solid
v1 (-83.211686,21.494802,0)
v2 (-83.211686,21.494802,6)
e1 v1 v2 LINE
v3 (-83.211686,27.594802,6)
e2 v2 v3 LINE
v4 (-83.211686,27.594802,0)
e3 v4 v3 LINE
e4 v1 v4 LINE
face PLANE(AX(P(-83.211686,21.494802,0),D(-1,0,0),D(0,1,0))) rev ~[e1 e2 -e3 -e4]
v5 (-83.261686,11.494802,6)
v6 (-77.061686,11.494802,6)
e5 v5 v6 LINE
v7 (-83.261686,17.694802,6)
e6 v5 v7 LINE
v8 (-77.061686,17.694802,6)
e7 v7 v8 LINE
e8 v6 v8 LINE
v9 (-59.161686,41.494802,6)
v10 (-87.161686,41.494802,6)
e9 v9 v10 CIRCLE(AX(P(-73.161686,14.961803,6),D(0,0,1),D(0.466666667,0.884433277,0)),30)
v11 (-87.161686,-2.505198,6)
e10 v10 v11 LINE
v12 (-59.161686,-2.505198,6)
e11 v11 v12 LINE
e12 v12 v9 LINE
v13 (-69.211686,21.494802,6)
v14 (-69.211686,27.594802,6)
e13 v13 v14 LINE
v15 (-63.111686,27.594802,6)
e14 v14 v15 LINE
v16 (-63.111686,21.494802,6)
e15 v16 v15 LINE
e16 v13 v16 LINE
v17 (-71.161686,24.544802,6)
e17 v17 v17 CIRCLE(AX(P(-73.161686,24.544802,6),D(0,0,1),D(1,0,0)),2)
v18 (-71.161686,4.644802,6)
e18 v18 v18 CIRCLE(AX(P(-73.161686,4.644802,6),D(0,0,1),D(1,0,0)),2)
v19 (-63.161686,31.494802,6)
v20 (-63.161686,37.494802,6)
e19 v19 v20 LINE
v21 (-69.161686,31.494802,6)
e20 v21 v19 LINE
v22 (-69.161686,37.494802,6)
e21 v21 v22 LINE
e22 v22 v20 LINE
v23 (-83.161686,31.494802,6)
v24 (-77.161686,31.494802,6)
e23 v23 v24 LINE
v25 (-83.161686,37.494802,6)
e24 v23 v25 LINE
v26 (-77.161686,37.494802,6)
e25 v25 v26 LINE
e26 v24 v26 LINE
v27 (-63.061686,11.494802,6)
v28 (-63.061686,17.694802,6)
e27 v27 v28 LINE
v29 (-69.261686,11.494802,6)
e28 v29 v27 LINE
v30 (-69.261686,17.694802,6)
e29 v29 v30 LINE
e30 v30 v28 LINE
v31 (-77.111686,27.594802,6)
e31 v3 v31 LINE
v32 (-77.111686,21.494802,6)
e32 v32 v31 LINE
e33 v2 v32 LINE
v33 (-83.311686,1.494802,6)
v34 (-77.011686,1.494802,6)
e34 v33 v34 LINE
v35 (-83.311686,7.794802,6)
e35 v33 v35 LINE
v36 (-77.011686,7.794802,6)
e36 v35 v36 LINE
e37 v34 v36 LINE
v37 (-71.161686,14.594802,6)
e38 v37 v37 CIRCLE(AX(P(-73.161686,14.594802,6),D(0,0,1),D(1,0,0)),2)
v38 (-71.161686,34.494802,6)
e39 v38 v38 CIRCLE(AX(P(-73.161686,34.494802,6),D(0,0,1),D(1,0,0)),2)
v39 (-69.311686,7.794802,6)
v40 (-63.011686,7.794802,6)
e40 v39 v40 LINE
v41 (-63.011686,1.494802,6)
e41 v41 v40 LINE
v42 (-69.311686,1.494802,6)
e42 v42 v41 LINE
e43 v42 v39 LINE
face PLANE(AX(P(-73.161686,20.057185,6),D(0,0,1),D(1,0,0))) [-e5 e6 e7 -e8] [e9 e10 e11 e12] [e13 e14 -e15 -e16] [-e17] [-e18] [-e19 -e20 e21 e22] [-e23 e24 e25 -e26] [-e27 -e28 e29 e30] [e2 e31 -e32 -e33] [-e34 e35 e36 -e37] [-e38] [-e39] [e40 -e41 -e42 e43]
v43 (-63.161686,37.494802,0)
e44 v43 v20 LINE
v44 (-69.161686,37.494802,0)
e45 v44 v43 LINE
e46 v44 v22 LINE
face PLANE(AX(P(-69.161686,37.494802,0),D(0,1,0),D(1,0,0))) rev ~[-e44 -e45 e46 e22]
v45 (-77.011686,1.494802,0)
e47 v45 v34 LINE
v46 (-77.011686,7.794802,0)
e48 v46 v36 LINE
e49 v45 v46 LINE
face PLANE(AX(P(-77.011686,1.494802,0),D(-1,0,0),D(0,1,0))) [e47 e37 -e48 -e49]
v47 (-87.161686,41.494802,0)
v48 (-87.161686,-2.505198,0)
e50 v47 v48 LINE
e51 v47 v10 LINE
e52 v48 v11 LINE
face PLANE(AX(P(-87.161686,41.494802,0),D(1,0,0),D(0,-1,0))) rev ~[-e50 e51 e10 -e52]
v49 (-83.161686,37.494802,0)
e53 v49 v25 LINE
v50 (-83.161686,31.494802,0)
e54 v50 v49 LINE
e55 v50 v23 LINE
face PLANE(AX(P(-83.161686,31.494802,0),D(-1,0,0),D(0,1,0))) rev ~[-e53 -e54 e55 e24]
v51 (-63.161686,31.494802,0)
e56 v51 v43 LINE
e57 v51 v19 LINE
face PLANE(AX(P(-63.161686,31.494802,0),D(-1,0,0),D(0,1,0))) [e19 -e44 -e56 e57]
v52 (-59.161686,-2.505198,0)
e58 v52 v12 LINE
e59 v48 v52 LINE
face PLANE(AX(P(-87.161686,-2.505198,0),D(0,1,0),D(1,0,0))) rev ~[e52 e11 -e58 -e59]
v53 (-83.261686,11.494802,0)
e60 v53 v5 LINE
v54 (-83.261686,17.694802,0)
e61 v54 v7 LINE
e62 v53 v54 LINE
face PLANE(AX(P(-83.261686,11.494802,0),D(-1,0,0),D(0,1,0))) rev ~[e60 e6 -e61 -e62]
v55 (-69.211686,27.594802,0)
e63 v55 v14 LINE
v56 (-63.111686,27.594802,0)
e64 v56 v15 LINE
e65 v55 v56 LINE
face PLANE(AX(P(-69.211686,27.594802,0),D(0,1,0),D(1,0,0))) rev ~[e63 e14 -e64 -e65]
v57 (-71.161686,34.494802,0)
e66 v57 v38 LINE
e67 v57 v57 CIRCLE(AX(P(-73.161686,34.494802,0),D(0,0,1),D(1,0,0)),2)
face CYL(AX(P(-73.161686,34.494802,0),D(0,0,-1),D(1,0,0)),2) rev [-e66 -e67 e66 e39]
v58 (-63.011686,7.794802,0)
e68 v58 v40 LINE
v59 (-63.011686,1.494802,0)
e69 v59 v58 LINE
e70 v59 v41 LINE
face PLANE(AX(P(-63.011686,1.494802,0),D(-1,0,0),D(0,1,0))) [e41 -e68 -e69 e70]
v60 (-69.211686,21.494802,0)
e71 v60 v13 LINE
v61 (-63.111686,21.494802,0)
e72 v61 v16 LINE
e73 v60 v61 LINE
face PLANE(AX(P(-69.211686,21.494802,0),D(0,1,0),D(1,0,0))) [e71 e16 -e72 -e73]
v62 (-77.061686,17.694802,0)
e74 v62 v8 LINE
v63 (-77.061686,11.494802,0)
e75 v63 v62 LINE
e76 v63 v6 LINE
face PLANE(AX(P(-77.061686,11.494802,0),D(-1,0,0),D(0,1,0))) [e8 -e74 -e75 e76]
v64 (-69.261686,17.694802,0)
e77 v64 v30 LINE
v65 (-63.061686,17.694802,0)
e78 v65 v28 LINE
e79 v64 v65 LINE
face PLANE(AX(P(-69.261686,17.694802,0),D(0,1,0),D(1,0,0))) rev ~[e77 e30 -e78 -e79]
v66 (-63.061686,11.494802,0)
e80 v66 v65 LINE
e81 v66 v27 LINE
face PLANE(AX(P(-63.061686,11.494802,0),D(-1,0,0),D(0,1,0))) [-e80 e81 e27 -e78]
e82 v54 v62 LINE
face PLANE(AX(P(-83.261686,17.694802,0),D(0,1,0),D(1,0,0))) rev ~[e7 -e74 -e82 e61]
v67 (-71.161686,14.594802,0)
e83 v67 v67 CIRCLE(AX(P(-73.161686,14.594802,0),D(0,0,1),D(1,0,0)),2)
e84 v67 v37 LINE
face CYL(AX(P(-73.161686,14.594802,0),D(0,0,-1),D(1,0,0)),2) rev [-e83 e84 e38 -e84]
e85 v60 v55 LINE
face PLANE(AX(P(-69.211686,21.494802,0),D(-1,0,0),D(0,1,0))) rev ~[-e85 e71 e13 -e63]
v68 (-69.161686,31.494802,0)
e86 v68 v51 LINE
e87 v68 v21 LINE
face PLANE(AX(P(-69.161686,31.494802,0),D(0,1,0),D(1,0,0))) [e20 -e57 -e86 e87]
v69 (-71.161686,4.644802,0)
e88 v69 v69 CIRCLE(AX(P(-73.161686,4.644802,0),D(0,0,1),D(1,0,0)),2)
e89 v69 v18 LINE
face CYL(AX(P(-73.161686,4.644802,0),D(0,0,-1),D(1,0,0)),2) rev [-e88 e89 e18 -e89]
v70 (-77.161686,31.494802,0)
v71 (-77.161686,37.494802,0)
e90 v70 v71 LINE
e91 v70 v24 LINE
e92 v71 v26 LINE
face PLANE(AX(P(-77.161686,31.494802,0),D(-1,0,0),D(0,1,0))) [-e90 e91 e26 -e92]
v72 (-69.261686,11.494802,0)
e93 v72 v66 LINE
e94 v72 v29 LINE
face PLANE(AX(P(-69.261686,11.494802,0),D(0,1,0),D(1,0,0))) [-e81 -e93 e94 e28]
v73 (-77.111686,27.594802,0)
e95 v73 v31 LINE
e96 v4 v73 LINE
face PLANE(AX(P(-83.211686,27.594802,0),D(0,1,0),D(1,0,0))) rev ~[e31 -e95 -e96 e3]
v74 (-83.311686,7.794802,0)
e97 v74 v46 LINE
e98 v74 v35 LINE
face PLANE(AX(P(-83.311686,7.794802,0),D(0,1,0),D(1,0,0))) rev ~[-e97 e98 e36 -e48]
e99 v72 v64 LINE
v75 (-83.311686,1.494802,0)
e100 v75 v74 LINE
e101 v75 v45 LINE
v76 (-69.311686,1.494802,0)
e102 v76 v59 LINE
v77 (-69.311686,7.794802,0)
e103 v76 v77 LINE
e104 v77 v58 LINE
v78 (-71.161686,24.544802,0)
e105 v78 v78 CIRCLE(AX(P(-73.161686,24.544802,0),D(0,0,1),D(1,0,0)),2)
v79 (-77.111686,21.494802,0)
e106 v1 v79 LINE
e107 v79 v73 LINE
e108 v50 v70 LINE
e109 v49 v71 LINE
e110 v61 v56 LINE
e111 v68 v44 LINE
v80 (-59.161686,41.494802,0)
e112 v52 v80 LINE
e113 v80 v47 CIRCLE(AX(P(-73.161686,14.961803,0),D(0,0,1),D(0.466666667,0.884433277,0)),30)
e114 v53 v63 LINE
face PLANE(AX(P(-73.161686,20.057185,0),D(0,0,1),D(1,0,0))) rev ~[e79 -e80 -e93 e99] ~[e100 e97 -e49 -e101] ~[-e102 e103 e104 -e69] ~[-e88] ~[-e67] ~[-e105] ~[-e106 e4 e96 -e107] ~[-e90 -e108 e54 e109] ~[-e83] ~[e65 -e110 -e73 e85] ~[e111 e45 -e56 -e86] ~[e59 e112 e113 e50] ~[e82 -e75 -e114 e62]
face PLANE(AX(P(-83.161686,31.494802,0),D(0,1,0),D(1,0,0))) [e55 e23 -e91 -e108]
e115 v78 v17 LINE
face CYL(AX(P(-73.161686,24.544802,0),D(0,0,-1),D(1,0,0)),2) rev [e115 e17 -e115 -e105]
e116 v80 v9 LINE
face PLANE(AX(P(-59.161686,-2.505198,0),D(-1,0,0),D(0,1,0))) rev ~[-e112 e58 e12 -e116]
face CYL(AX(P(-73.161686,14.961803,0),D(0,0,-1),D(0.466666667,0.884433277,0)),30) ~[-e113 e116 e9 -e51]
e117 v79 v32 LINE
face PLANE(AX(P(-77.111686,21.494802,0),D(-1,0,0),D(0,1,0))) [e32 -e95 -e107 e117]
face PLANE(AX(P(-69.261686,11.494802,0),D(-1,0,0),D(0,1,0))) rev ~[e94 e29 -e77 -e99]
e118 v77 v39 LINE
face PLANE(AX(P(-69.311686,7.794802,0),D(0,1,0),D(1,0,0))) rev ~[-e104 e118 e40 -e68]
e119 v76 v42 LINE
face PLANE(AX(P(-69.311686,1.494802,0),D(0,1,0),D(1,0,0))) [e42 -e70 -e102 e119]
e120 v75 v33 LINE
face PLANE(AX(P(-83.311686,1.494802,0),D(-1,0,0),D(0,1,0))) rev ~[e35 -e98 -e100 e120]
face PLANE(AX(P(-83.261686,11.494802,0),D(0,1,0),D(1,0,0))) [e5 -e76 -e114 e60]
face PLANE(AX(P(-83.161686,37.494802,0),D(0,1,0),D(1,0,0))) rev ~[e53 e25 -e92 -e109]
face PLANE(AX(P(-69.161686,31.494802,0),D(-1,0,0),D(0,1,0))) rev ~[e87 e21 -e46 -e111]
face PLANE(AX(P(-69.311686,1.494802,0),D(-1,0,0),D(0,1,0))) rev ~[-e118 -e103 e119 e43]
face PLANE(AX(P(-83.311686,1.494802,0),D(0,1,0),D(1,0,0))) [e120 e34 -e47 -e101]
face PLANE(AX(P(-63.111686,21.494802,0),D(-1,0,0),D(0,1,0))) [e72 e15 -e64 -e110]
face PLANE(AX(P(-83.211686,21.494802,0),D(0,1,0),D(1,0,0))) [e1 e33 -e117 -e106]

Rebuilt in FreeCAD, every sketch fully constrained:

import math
import FreeCAD as App
import Part
import Sketcher

V = App.Vector

doc = App.newDocument("Part")
body = doc.addObject("PartDesign::Body", "Body")

# Sketch on XY plane
sketch1 = doc.addObject("Sketcher::SketchObject", "Sketch")
body.addObject(sketch1)
sketch1.AttachmentSupport = (doc.XY_Plane, [""])
sketch1.MapMode = "FlatFace"
sketch1.addGeometry([
    Part.LineSegment(V(-87.2, 41.5, 0), V(-87.2, -2.5, 0)),  # 0
    Part.LineSegment(V(-87.2, -2.5, 0), V(-59.2, -2.5, 0)),  # 1
    Part.LineSegment(V(-59.2, -2.5, 0), V(-59.2, 41.5, 0)),  # 2
    Part.ArcOfCircle(Part.Circle(V(-73.2, 15, 0), V(0, 0, 1), 30), math.radians(62), math.radians(118)),  # 3
    Part.LineSegment(V(-77, 1.5, 0), V(-83.3, 1.5, 0)),  # 4
    Part.LineSegment(V(-83.3, 1.5, 0), V(-83.3, 7.8, 0)),  # 5
    Part.LineSegment(V(-83.3, 7.8, 0), V(-77, 7.8, 0)),  # 6
    Part.LineSegment(V(-77, 7.8, 0), V(-77, 1.5, 0)),  # 7
    Part.LineSegment(V(-77.1, 11.5, 0), V(-83.3, 11.5, 0)),  # 8
    Part.LineSegment(V(-83.3, 11.5, 0), V(-83.3, 17.7, 0)),  # 9
    Part.LineSegment(V(-83.3, 17.7, 0), V(-77.1, 17.7, 0)),  # 10
    Part.LineSegment(V(-77.1, 17.7, 0), V(-77.1, 11.5, 0)),  # 11
    Part.Circle(V(-73.2, 4.6, 0), V(0, 0, 1), 2),  # 12
    Part.LineSegment(V(-63, 1.5, 0), V(-69.3, 1.5, 0)),  # 13
    Part.LineSegment(V(-69.3, 1.5, 0), V(-69.3, 7.8, 0)),  # 14
    Part.LineSegment(V(-69.3, 7.8, 0), V(-63, 7.8, 0)),  # 15
    Part.LineSegment(V(-63, 7.8, 0), V(-63, 1.5, 0)),  # 16
    Part.Circle(V(-73.2, 14.6, 0), V(0, 0, 1), 2),  # 17
    Part.LineSegment(V(-63.1, 11.5, 0), V(-69.3, 11.5, 0)),  # 18
    Part.LineSegment(V(-69.3, 11.5, 0), V(-69.3, 17.7, 0)),  # 19
    Part.LineSegment(V(-69.3, 17.7, 0), V(-63.1, 17.7, 0)),  # 20
    Part.LineSegment(V(-63.1, 17.7, 0), V(-63.1, 11.5, 0)),  # 21
    Part.LineSegment(V(-77.1, 21.5, 0), V(-83.2, 21.5, 0)),  # 22
    Part.LineSegment(V(-83.2, 21.5, 0), V(-83.2, 27.6, 0)),  # 23
    Part.LineSegment(V(-83.2, 27.6, 0), V(-77.1, 27.6, 0)),  # 24
    Part.LineSegment(V(-77.1, 27.6, 0), V(-77.1, 21.5, 0)),  # 25
    Part.LineSegment(V(-77.2, 31.5, 0), V(-83.2, 31.5, 0)),  # 26
    Part.LineSegment(V(-83.2, 31.5, 0), V(-83.2, 37.5, 0)),  # 27
    Part.LineSegment(V(-83.2, 37.5, 0), V(-77.2, 37.5, 0)),  # 28
    Part.LineSegment(V(-77.2, 37.5, 0), V(-77.2, 31.5, 0)),  # 29
    Part.Circle(V(-73.2, 24.5, 0), V(0, 0, 1), 2),  # 30
    Part.LineSegment(V(-63.1, 21.5, 0), V(-69.2, 21.5, 0)),  # 31
    Part.LineSegment(V(-69.2, 21.5, 0), V(-69.2, 27.6, 0)),  # 32
    Part.LineSegment(V(-69.2, 27.6, 0), V(-63.1, 27.6, 0)),  # 33
    Part.LineSegment(V(-63.1, 27.6, 0), V(-63.1, 21.5, 0)),  # 34
    Part.Circle(V(-73.2, 34.5, 0), V(0, 0, 1), 2),  # 35
    Part.LineSegment(V(-63.2, 31.5, 0), V(-69.2, 31.5, 0)),  # 36
    Part.LineSegment(V(-69.2, 31.5, 0), V(-69.2, 37.5, 0)),  # 37
    Part.LineSegment(V(-69.2, 37.5, 0), V(-63.2, 37.5, 0)),  # 38
    Part.LineSegment(V(-63.2, 37.5, 0), V(-63.2, 31.5, 0)),  # 39
], False)
sketch1.addConstraint([
    Sketcher.Constraint("Coincident", 0, 2, 1, 1),
    Sketcher.Constraint("Coincident", 1, 2, 2, 1),
    Sketcher.Constraint("Coincident", 2, 2, 3, 1),
    Sketcher.Constraint("Coincident", 3, 2, 0, 1),
    Sketcher.Constraint("Coincident", 4, 2, 5, 1),
    Sketcher.Constraint("Coincident", 5, 2, 6, 1),
    Sketcher.Constraint("Coincident", 6, 2, 7, 1),
    Sketcher.Constraint("Coincident", 7, 2, 4, 1),
    Sketcher.Constraint("Coincident", 8, 2, 9, 1),
    Sketcher.Constraint("Coincident", 9, 2, 10, 1),
    Sketcher.Constraint("Coincident", 10, 2, 11, 1),
    Sketcher.Constraint("Coincident", 11, 2, 8, 1),
    Sketcher.Constraint("Coincident", 13, 2, 14, 1),
    Sketcher.Constraint("Coincident", 14, 2, 15, 1),
    Sketcher.Constraint("Coincident", 15, 2, 16, 1),
    Sketcher.Constraint("Coincident", 16, 2, 13, 1),
    Sketcher.Constraint("Coincident", 18, 2, 19, 1),
    Sketcher.Constraint("Coincident", 19, 2, 20, 1),
    Sketcher.Constraint("Coincident", 20, 2, 21, 1),
    Sketcher.Constraint("Coincident", 21, 2, 18, 1),
    Sketcher.Constraint("Coincident", 22, 2, 23, 1),
    Sketcher.Constraint("Coincident", 23, 2, 24, 1),
    Sketcher.Constraint("Coincident", 24, 2, 25, 1),
    Sketcher.Constraint("Coincident", 25, 2, 22, 1),
    Sketcher.Constraint("Coincident", 26, 2, 27, 1),
    Sketcher.Constraint("Coincident", 27, 2, 28, 1),
    Sketcher.Constraint("Coincident", 28, 2, 29, 1),
    Sketcher.Constraint("Coincident", 29, 2, 26, 1),
    Sketcher.Constraint("Coincident", 31, 2, 32, 1),
    Sketcher.Constraint("Coincident", 32, 2, 33, 1),
    Sketcher.Constraint("Coincident", 33, 2, 34, 1),
    Sketcher.Constraint("Coincident", 34, 2, 31, 1),
    Sketcher.Constraint("Coincident", 36, 2, 37, 1),
    Sketcher.Constraint("Coincident", 37, 2, 38, 1),
    Sketcher.Constraint("Coincident", 38, 2, 39, 1),
    Sketcher.Constraint("Coincident", 39, 2, 36, 1),
    Sketcher.Constraint("Vertical", 0),
    Sketcher.Constraint("Horizontal", 1),
    Sketcher.Constraint("Vertical", 2),
    Sketcher.Constraint("Horizontal", 4),
    Sketcher.Constraint("Vertical", 5),
    Sketcher.Constraint("Horizontal", 6),
    Sketcher.Constraint("Vertical", 7),
    Sketcher.Constraint("Horizontal", 8),
    Sketcher.Constraint("Vertical", 9),
    Sketcher.Constraint("Horizontal", 10),
    Sketcher.Constraint("Vertical", 11),
    Sketcher.Constraint("Horizontal", 13),
    Sketcher.Constraint("Vertical", 14),
    Sketcher.Constraint("Horizontal", 15),
    Sketcher.Constraint("Vertical", 16),
    Sketcher.Constraint("Horizontal", 18),
    Sketcher.Constraint("Vertical", 19),
    Sketcher.Constraint("Horizontal", 20),
    Sketcher.Constraint("Vertical", 21),
    Sketcher.Constraint("Horizontal", 22),
    Sketcher.Constraint("Vertical", 23),
    Sketcher.Constraint("Horizontal", 24),
    Sketcher.Constraint("Vertical", 25),
    Sketcher.Constraint("Horizontal", 26),
    Sketcher.Constraint("Vertical", 27),
    Sketcher.Constraint("Horizontal", 28),
    Sketcher.Constraint("Vertical", 29),
    Sketcher.Constraint("Horizontal", 31),
    Sketcher.Constraint("Vertical", 32),
    Sketcher.Constraint("Horizontal", 33),
    Sketcher.Constraint("Vertical", 34),
    Sketcher.Constraint("Horizontal", 36),
    Sketcher.Constraint("Vertical", 37),
    Sketcher.Constraint("Horizontal", 38),
    Sketcher.Constraint("Vertical", 39),
    Sketcher.Constraint("Equal", 12, 17),
    Sketcher.Constraint("Equal", 17, 30),
    Sketcher.Constraint("Equal", 30, 35),
    Sketcher.Constraint("Horizontal", 2, 2, 3, 2),
    Sketcher.Constraint("Horizontal", 7, 2, 13, 2),
    Sketcher.Constraint("Horizontal", 6, 2, 14, 2),
    Sketcher.Constraint("Horizontal", 11, 2, 18, 2),
    Sketcher.Constraint("Horizontal", 10, 2, 19, 2),
    Sketcher.Constraint("Horizontal", 25, 2, 31, 2),
    Sketcher.Constraint("Horizontal", 24, 2, 32, 2),
    Sketcher.Constraint("Horizontal", 29, 2, 36, 2),
    Sketcher.Constraint("Horizontal", 28, 2, 37, 2),
    Sketcher.Constraint("Vertical", 3, 3, 12, 3),
    Sketcher.Constraint("Vertical", 12, 3, 17, 3),
    Sketcher.Constraint("Vertical", 17, 3, 30, 3),
    Sketcher.Constraint("Vertical", 30, 3, 35, 3),
    Sketcher.Constraint("Equal", 6, 13),
    Sketcher.Constraint("Equal", 10, 18),
    Sketcher.Constraint("Equal", 24, 31),
    Sketcher.Constraint("Equal", 28, 36),
    Sketcher.Constraint("Equal", 15, 5),
    Sketcher.Constraint("Equal", 20, 9),
    Sketcher.Constraint("Equal", 33, 23),
    Sketcher.Constraint("Equal", 38, 27),
    Sketcher.Constraint("Diameter", 12, 4.0),
    Sketcher.Constraint("Radius", 3, 30.0),
    Sketcher.Constraint("DistanceX", 1, 1, 1, 2, 28.0),
    Sketcher.Constraint("DistanceX", 26, 2, 26, 1, 6.0),
    Sketcher.Constraint("DistanceY", 0, 2, 0, 1, 44.0),
    Sketcher.Constraint("DistanceX", 4, 2, 4, 1, 6.3),
    Sketcher.Constraint("DistanceX", 8, 2, 8, 1, 6.2),
    Sketcher.Constraint("DistanceX", 22, 2, 22, 1, 6.1),
    Sketcher.Constraint("DistanceY", 0, 2, 35, 3, 37.0),
    Sketcher.Constraint("DistanceY", 0, 2, 4, 2, 4.0),
    Sketcher.Constraint("DistanceY", 4, 2, 8, 2, 10.0),
    Sketcher.Constraint("DistanceY", 8, 2, 22, 2, 10.0),
    Sketcher.Constraint("DistanceY", 22, 2, 26, 2, 10.0),
    Sketcher.Constraint("DistanceX", 26, 2, 35, 3, 10.0),
    Sketcher.Constraint("DistanceX", 35, 3, 36, 2, 4.0),
    Sketcher.Constraint("DistanceY", 12, 3, 30, 3, 19.9),
    Sketcher.Constraint("DistanceY", 17, 3, 35, 3, 19.9),
    Sketcher.Constraint("DistanceX", 8, 2, 17, 3, 10.1),
    Sketcher.Constraint("DistanceX", 7, 2, 13, 2, 7.7),
    Sketcher.Constraint("DistanceX", 17, 3, 18, 2, 3.9),
    Sketcher.Constraint("DistanceX", 25, 2, 31, 2, 7.9),
    Sketcher.Constraint("DistanceY", 12, 3, 17, 3, 9.95),
    Sketcher.Constraint("DistanceX", 0, 2, 4, 2, 3.85),
    Sketcher.Constraint("DistanceX", 9, 2, 22, 2, 0.05),
    Sketcher.Constraint("DistanceY", -1, 1, 12, 3, 4.644802),
    Sketcher.Constraint("DistanceX", 3, 3, -1, 1, 73.161686),
])
pad1 = doc.addObject("PartDesign::Pad", "Pad")
body.addObject(pad1)
pad1.Profile = sketch1
pad1.Length = 6

doc.recompute()
